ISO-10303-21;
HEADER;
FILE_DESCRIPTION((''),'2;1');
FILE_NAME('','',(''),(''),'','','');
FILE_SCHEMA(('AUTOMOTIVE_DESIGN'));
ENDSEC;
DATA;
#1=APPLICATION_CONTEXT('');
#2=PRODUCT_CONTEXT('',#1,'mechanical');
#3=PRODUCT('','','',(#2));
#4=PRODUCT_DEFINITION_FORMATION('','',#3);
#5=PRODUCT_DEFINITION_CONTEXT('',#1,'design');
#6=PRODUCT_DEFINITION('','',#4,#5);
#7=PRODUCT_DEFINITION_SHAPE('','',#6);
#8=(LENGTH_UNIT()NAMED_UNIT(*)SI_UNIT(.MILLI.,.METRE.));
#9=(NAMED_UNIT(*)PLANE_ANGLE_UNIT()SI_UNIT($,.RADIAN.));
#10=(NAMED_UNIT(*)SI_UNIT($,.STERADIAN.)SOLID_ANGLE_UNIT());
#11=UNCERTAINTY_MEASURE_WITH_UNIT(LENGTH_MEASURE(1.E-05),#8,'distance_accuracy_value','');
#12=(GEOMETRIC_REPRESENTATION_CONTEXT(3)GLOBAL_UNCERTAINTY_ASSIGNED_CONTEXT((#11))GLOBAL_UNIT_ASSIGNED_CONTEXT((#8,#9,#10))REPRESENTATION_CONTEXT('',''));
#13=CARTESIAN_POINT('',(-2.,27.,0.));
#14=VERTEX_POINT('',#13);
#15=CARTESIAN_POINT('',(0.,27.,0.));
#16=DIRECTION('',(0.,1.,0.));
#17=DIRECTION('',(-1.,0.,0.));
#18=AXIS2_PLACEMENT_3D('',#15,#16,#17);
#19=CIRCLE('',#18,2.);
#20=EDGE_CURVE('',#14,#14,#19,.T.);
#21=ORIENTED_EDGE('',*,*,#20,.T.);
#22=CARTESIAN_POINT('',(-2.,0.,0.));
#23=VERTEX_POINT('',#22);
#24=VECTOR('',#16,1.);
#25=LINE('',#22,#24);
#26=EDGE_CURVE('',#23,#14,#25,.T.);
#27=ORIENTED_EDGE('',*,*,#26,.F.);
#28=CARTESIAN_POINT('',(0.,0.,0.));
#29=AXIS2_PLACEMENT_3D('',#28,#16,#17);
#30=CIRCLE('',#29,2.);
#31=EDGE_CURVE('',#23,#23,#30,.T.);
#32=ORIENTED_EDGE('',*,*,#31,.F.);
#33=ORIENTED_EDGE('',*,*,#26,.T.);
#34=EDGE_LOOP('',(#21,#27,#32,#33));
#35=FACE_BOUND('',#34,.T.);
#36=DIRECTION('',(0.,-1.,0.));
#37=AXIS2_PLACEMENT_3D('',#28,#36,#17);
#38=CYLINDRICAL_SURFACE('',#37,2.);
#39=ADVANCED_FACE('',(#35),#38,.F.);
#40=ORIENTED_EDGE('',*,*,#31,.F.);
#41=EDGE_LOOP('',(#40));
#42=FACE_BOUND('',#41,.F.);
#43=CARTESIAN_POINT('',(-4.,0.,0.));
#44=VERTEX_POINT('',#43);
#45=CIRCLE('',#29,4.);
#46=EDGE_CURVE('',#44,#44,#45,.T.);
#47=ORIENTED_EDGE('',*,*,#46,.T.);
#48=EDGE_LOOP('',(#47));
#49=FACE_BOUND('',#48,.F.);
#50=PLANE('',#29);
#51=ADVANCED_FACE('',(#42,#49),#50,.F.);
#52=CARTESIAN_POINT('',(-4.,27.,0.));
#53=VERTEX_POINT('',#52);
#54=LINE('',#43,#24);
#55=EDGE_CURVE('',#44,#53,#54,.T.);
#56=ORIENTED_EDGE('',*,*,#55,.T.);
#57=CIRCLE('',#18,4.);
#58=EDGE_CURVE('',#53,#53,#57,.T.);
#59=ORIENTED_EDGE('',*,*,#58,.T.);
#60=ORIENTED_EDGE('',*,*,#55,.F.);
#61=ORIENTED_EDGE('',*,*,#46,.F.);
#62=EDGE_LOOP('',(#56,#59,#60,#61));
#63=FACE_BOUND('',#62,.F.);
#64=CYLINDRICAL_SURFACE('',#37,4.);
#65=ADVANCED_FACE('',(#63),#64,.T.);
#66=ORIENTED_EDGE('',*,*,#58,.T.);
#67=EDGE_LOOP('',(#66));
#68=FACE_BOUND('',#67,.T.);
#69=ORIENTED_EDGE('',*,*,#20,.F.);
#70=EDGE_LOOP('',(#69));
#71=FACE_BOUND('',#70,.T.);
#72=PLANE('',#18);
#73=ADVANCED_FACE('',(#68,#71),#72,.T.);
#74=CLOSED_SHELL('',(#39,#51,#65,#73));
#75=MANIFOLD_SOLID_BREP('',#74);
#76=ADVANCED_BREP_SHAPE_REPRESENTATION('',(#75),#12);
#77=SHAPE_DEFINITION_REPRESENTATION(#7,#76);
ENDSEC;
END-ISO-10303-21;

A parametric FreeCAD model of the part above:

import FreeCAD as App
import Part
import Sketcher
Q = App.Units.Quantity

doc = App.newDocument("Part")
params = doc.addObject("Spreadsheet::Sheet", "Params")
for row, (alias, value) in enumerate([
    ("sketch1_diameter", "8 mm"),
    ("sketch1_diameter2", "4 mm"),
    ("pad1_length", "27 mm"),
], start=1):
    params.set(f"A{row}", alias)
    params.set(f"B{row}", "=" + value)
    params.setAlias(f"B{row}", alias)

body = doc.addObject("PartDesign::Body", "Body")

sketch1 = doc.addObject("Sketcher::SketchObject", "Sketch")
body.addObject(sketch1)
sketch1.AttachmentSupport = (doc.XZ_Plane, [""])
sketch1.MapMode = "FlatFace"
sketch1.addGeometry([
    Part.Circle(App.Vector(0, 0, 0), App.Vector(0, 0, 1), 4),
    Part.Circle(App.Vector(0, 0, 0), App.Vector(0, 0, 1), 2),
], False)
sketch1.addConstraint([
    Sketcher.Constraint("Coincident", 0, 3, -1, 1),
    Sketcher.Constraint("Coincident", 1, 3, -1, 1),
    Sketcher.Constraint("Diameter", 0, Q("8 mm")),
    Sketcher.Constraint("Diameter", 1, Q("4 mm")),
])
sketch1.setExpression("Constraints[2]", "Params.sketch1_diameter")
sketch1.setExpression("Constraints[3]", "Params.sketch1_diameter2")
pad1 = doc.addObject("PartDesign::Pad", "Pad")
body.addObject(pad1)
pad1.Profile = sketch1
pad1.setExpression("Length", "Params.pad1_length")
pad1.Reversed = True

doc.recompute()
